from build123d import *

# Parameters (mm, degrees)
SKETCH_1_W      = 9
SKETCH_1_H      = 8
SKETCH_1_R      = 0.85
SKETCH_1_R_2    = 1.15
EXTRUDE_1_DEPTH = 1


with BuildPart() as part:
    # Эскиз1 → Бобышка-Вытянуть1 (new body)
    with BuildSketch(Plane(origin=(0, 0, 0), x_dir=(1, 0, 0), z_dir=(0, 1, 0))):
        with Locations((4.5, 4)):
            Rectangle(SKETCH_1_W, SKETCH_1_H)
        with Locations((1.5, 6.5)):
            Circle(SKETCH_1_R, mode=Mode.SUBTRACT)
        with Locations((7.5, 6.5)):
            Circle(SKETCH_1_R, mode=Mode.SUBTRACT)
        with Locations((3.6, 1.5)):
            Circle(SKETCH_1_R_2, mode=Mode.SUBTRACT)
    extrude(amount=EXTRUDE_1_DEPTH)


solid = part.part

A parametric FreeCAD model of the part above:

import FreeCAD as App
import Part
import Sketcher

V = App.Vector

doc = App.newDocument("Part")
body = doc.addObject("PartDesign::Body", "Body")

# Sketch on XZ plane
sketch1 = body.newObject("Sketcher::SketchObject", "Sketch")
sketch1.AttachmentSupport = (doc.getObject("XZ_Plane"), [""])
sketch1.MapMode = "FlatFace"
sketch1.addGeometry(Part.LineSegment(V(0, -8, 0), V(0, 0, 0)), False)
sketch1.addGeometry(Part.LineSegment(V(0, 0, 0), V(9, 0, 0)), False)
sketch1.addGeometry(Part.LineSegment(V(9, 0, 0), V(9, -8, 0)), False)
sketch1.addGeometry(Part.LineSegment(V(9, -8, 0), V(0, -8, 0)), False)
sketch1.addGeometry(Part.Circle(V(3.6, -1.5, 0), V(0, 0, 1), 1.15), False)
sketch1.addGeometry(Part.Circle(V(1.5, -6.5, 0), V(0, 0, 1), 0.85), False)
sketch1.addGeometry(Part.Circle(V(7.5, -6.5, 0), V(0, 0, 1), 0.85), False)
sketch1.addConstraint(Sketcher.Constraint("Coincident", 0, 2, 1, 1))
sketch1.addConstraint(Sketcher.Constraint("Coincident", 1, 2, 2, 1))
sketch1.addConstraint(Sketcher.Constraint("Coincident", 2, 2, 3, 1))
sketch1.addConstraint(Sketcher.Constraint("Coincident", 3, 2, 0, 1))
sketch1.addConstraint(Sketcher.Constraint("Vertical", 0))
sketch1.addConstraint(Sketcher.Constraint("Horizontal", 1))
sketch1.addConstraint(Sketcher.Constraint("Vertical", 2))
sketch1.addConstraint(Sketcher.Constraint("Horizontal", 3))
sketch1.addConstraint(Sketcher.Constraint("Coincident", 0, 2, -1, 1))
sketch1.addConstraint(Sketcher.Constraint("Equal", 5, 6))
sketch1.addConstraint(Sketcher.Constraint("Horizontal", 5, 3, 6, 3))
sketch1.addConstraint(Sketcher.Constraint("Diameter", 4, 2.3))
sketch1.addConstraint(Sketcher.Constraint("Diameter", 5, 1.7))
sketch1.addConstraint(Sketcher.Constraint("DistanceX", 1, 1, 1, 2, 9.0))
sketch1.addConstraint(Sketcher.Constraint("DistanceY", 0, 1, 0, 2, 8.0))
sketch1.addConstraint(Sketcher.Constraint("DistanceY", 5, 3, 4, 3, 5.0))
sketch1.addConstraint(Sketcher.Constraint("DistanceX", 5, 3, 6, 3, 6.0))
sketch1.addConstraint(Sketcher.Constraint("DistanceX", -1, 1, 4, 3, 3.6))
sketch1.addConstraint(Sketcher.Constraint("DistanceY", 4, 3, -1, 1, 1.5))
sketch1.addConstraint(Sketcher.Constraint("DistanceX", -1, 1, 5, 3, 1.5))
pad1 = body.newObject("PartDesign::Pad", "Pad")
pad1.Profile = sketch1
pad1.Length = 1
pad1.Reversed = True

doc.recompute()
